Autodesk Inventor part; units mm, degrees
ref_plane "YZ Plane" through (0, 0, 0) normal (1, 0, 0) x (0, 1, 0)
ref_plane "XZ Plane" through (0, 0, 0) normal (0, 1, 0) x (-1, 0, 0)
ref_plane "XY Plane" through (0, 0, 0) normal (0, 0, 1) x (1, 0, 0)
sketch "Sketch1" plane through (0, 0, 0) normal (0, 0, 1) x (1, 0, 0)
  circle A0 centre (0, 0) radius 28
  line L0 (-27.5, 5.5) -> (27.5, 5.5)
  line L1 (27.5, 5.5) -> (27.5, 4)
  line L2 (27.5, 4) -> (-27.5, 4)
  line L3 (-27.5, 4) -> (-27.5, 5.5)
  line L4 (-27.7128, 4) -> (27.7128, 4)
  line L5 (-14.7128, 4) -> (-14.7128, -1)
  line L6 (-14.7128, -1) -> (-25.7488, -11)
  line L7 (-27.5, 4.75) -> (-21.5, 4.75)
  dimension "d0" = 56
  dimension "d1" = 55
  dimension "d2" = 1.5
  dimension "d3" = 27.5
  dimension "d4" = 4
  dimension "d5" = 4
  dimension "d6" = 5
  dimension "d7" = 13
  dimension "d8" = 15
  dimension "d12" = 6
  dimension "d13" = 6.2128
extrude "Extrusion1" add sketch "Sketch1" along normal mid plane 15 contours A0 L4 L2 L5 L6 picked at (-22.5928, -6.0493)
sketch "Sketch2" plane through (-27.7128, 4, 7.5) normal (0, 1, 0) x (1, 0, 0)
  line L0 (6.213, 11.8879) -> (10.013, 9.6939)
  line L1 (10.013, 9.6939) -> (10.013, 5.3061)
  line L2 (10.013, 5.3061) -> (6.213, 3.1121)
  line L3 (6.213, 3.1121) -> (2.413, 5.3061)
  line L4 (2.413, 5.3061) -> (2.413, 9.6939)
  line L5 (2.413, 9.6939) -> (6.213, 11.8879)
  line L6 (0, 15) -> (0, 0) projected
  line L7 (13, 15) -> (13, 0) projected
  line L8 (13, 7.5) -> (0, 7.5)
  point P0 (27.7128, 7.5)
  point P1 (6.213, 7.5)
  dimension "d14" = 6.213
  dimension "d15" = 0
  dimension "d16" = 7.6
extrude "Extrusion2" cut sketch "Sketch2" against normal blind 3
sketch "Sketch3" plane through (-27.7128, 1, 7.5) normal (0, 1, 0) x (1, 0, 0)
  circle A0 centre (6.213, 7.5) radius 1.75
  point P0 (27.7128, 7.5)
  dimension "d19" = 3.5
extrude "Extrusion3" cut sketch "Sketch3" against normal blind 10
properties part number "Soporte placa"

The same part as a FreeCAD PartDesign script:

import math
import FreeCAD as App
import Part
import Sketcher
from FreeCAD import Vector
Q = App.Units.Quantity


def add_polygon(sketch, points):
    """Adds a closed chain of lines whose ends are joined by coincident constraints."""
    first, n = sketch.GeometryCount, len(points)
    for a, b in zip(points, points[1:] + points[:1]):
        sketch.addGeometry(Part.LineSegment(App.Vector(*a, 0), App.Vector(*b, 0)), False)
    for i in range(n):
        sketch.addConstraint(Sketcher.Constraint("Coincident", first + i, 2, first + (i + 1) % n, 1))

doc = App.newDocument("Part")
params = doc.addObject("Spreadsheet::Sheet", "Params")
for row, (alias, value) in enumerate([
    ("sketch1_radius", "28 mm"),
    ("sketch1_width", "13 mm"),
    ("sketch1_height", "5 mm"),
    ("pad1_length", "15 mm"),
    ("pocket1_length", "3 mm"),
    ("sketch3_diameter", "3.5 mm"),
    ("pocket2_length", "10 mm"),
], start=1):
    params.set(f"A{row}", alias)
    params.set(f"B{row}", "=" + value)
    params.setAlias(f"B{row}", alias)

body = doc.addObject("PartDesign::Body", "Body")

# Sketch on XY plane
sketch1 = body.newObject("Sketcher::SketchObject", "Sketch")
sketch1.AttachmentSupport = (doc.getObject("XY_Plane"), [""])
sketch1.MapMode = "FlatFace"
sketch1.addGeometry(Part.ArcOfCircle(Part.Circle(Vector(0, 0, 0), Vector(0, 0, 1), 28), math.radians(172), math.radians(203)), False)
sketch1.addGeometry(Part.LineSegment(Vector(-26, -11, 0), Vector(-15, -1, 0)), False)
sketch1.addGeometry(Part.LineSegment(Vector(-15, -1, 0), Vector(-15, 4, 0)), False)
sketch1.addGeometry(Part.LineSegment(Vector(-15, 4, 0), Vector(-28, 4, 0)), False)
sketch1.addConstraint(Sketcher.Constraint("Coincident", 0, 2, 1, 1))
sketch1.addConstraint(Sketcher.Constraint("Coincident", 1, 2, 2, 1))
sketch1.addConstraint(Sketcher.Constraint("Coincident", 2, 2, 3, 1))
sketch1.addConstraint(Sketcher.Constraint("Coincident", 3, 2, 0, 1))
sketch1.addConstraint(Sketcher.Constraint("Vertical", 2))
sketch1.addConstraint(Sketcher.Constraint("Horizontal", 3))
sketch1.addConstraint(Sketcher.Constraint("Coincident", 0, 3, -1, 1))
sketch1.addConstraint(Sketcher.Constraint("Radius", 0, 28.0))
sketch1.addConstraint(Sketcher.Constraint("DistanceX", 3, 2, 3, 1, 13.0))
sketch1.addConstraint(Sketcher.Constraint("DistanceY", 2, 1, 2, 2, 5.0))
sketch1.addConstraint(Sketcher.Constraint("DistanceY", -1, 1, 2, 2, 4.0))
sketch1.addConstraint(Sketcher.Constraint("DistanceY", 0, 2, 2, 2, 15.0))
sketch1.setExpression("Constraints[7]", "Params.sketch1_radius")
sketch1.setExpression("Constraints[8]", "Params.sketch1_width")
sketch1.setExpression("Constraints[9]", "Params.sketch1_height")
pad1 = body.newObject("PartDesign::Pad", "Pad")
pad1.Profile = sketch1
pad1.setExpression("Length", "Params.pad1_length")
pad1.Midplane = True

# Sketch on XZ plane
sketch2 = body.newObject("Sketcher::SketchObject", "Sketch001")
sketch2.AttachmentSupport = (doc.getObject("XZ_Plane"), [""])
sketch2.MapMode = "FlatFace"
sketch2.AttachmentOffset = App.Placement(Vector(0, 0, -4), App.Rotation())
add_polygon(sketch2, [(-17.7, -2.2), (-21.5, -4.4), (-25.3, -2.2), (-25.3, 2.2), (-21.5, 4.4), (-17.7, 2.2)])  # lines 0-5
sketch2.addConstraint(Sketcher.Constraint("Vertical", 2))
sketch2.addConstraint(Sketcher.Constraint("Vertical", 5))
sketch2.addConstraint(Sketcher.Constraint("Symmetric", 0, 2, 3, 2, -1))
sketch2.addConstraint(Sketcher.Constraint("Parallel", 0, 3))
sketch2.addConstraint(Sketcher.Constraint("Parallel", 1, 4))
sketch2.addConstraint(Sketcher.Constraint("Horizontal", 2, 2, 4, 2))
sketch2.addConstraint(Sketcher.Constraint("Horizontal", 1, 2, 5, 2))
sketch2.addConstraint(Sketcher.Constraint("DistanceX", 2, 2, 4, 2, 7.6))
sketch2.addConstraint(Sketcher.Constraint("Angle", 0, Q("-149.9992 deg")))
sketch2.addConstraint(Sketcher.Constraint("DistanceY", 2, 1, 2, 2, 4.3878))
sketch2.addConstraint(Sketcher.Constraint("DistanceX", 0, 2, -1, 1, 21.4998))
pocket1 = body.newObject("PartDesign::Pocket", "Pocket")
pocket1.Profile = sketch2
pocket1.setExpression("Length", "Params.pocket1_length")
pocket1.Reversed = True

# Sketch on XZ plane
sketch3 = body.newObject("Sketcher::SketchObject", "Sketch002")
sketch3.AttachmentSupport = (doc.getObject("XZ_Plane"), [""])
sketch3.MapMode = "FlatFace"
sketch3.AttachmentOffset = App.Placement(Vector(0, 0, -1), App.Rotation())
sketch3.addGeometry(Part.Circle(Vector(-21.5, 0, 0), Vector(0, 0, 1), 1.8), False)
sketch3.addConstraint(Sketcher.Constraint("PointOnObject", 0, 3, -1))
sketch3.addConstraint(Sketcher.Constraint("Diameter", 0, 3.5))
sketch3.addConstraint(Sketcher.Constraint("DistanceX", 0, 3, -1, 1, 21.4998))
sketch3.setExpression("Constraints[1]", "Params.sketch3_diameter")
pocket2 = body.newObject("PartDesign::Pocket", "Pocket001")
pocket2.Profile = sketch3
pocket2.setExpression("Length", "Params.pocket2_length")
pocket2.Reversed = True

doc.recompute()
